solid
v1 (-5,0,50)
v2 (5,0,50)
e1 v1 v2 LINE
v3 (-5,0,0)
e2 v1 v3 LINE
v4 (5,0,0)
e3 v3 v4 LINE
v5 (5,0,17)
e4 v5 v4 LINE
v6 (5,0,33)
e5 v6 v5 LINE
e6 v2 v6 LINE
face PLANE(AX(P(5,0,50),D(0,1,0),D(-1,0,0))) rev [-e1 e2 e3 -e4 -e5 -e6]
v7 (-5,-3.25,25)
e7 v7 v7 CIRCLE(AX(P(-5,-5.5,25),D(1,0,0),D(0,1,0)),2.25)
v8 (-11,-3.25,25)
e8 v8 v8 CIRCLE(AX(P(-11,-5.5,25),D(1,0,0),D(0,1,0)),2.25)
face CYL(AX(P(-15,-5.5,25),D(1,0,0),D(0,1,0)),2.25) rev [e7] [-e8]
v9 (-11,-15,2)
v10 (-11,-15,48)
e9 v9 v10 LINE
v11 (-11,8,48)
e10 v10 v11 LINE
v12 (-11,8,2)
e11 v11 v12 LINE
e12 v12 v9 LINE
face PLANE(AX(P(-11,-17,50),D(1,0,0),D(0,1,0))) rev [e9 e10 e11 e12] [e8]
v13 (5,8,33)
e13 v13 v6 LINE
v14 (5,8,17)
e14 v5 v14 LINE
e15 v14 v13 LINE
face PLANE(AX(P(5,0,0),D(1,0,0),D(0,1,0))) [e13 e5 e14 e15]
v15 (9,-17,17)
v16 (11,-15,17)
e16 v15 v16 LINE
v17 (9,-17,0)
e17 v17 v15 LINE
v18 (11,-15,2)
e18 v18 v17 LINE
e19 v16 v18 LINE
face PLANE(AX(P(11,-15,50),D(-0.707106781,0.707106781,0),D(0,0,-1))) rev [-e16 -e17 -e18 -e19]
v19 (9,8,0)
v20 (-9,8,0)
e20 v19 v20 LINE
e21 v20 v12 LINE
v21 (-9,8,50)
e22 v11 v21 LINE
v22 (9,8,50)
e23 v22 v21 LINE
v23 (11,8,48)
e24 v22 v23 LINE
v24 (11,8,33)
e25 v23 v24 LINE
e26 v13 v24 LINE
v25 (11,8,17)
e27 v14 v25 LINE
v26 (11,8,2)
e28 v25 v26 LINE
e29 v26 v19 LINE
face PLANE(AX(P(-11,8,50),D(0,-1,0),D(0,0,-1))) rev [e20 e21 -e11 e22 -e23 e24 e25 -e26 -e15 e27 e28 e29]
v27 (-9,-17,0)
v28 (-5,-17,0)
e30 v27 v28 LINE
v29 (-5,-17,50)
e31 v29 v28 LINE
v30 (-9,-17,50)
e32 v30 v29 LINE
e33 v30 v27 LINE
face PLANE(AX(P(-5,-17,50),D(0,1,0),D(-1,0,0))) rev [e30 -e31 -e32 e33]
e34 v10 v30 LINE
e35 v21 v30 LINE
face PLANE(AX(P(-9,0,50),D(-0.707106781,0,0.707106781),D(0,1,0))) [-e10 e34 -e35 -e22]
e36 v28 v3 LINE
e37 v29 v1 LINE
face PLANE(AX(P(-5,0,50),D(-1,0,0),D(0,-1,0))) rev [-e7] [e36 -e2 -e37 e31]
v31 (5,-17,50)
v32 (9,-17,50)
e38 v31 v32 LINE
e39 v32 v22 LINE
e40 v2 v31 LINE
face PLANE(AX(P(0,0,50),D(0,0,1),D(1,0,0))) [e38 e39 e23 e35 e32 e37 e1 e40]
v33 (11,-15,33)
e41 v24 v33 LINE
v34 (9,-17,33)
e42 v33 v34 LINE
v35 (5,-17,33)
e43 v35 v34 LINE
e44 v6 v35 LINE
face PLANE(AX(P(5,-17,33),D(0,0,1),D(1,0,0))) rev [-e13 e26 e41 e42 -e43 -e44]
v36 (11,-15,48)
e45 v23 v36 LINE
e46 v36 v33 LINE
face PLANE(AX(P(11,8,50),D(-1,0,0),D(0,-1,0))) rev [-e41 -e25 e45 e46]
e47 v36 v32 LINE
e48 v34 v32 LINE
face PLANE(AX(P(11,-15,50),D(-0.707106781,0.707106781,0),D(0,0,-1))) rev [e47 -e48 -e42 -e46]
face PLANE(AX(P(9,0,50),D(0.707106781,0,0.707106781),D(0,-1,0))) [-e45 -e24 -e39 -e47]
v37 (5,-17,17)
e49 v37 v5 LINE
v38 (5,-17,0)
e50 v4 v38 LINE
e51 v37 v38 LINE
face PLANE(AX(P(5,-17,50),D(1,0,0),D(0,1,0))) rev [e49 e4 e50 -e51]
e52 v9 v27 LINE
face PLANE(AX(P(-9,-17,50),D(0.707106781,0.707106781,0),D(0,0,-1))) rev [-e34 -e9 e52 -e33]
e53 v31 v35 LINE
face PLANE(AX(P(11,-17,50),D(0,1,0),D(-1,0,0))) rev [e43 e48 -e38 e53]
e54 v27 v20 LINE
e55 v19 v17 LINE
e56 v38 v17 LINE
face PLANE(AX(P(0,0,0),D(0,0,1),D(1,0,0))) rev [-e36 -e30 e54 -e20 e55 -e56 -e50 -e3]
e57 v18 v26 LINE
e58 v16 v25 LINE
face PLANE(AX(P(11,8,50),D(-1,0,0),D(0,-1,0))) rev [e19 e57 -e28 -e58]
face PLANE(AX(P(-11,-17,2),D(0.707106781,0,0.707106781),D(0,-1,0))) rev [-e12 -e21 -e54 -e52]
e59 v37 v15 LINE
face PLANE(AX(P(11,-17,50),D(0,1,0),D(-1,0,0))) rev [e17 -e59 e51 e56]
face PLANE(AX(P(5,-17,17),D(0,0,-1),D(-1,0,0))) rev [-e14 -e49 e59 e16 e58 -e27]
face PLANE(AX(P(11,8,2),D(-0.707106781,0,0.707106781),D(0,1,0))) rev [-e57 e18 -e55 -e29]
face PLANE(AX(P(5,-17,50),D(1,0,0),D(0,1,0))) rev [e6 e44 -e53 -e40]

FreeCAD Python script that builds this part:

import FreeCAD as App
import Part
import Sketcher

V = App.Vector


def edges_at(feature, points):
    """Names of the edges that pass closest to the given points."""
    edges = feature.Shape.Edges
    near = lambda p: min(range(len(edges)), key=lambda i: edges[i].distToShape(Part.Vertex(*p))[0])
    return sorted({f"Edge{near(p) + 1}" for p in points})

doc = App.newDocument("Part")
body = doc.addObject("PartDesign::Body", "Body")

sketch1 = doc.addObject("Sketcher::SketchObject", "Sketch")
body.addObject(sketch1)
sketch1.AttachmentSupport = (doc.XY_Plane, [""])
sketch1.MapMode = "FlatFace"
sketch1.addGeometry(Part.LineSegment(V(-5, 0, 0), V(5, 0, 0)), False)
sketch1.addGeometry(Part.LineSegment(V(5, 0, 0), V(5, -17, 0)), False)
sketch1.addGeometry(Part.LineSegment(V(5, -17, 0), V(11, -17, 0)), False)
sketch1.addGeometry(Part.LineSegment(V(11, -17, 0), V(11, 8, 0)), False)
sketch1.addGeometry(Part.LineSegment(V(11, 8, 0), V(-11, 8, 0)), False)
sketch1.addGeometry(Part.LineSegment(V(-11, 8, 0), V(-11, -17, 0)), False)
sketch1.addGeometry(Part.LineSegment(V(-11, -17, 0), V(-5, -17, 0)), False)
sketch1.addGeometry(Part.LineSegment(V(-5, -17, 0), V(-5, 0, 0)), False)
sketch1.addConstraint(Sketcher.Constraint("Coincident", 0, 2, 1, 1))
sketch1.addConstraint(Sketcher.Constraint("Coincident", 1, 2, 2, 1))
sketch1.addConstraint(Sketcher.Constraint("Coincident", 2, 2, 3, 1))
sketch1.addConstraint(Sketcher.Constraint("Coincident", 3, 2, 4, 1))
sketch1.addConstraint(Sketcher.Constraint("Coincident", 4, 2, 5, 1))
sketch1.addConstraint(Sketcher.Constraint("Coincident", 5, 2, 6, 1))
sketch1.addConstraint(Sketcher.Constraint("Coincident", 6, 2, 7, 1))
sketch1.addConstraint(Sketcher.Constraint("Coincident", 7, 2, 0, 1))
sketch1.addConstraint(Sketcher.Constraint("Horizontal", 0))
sketch1.addConstraint(Sketcher.Constraint("Vertical", 1))
sketch1.addConstraint(Sketcher.Constraint("Horizontal", 2))
sketch1.addConstraint(Sketcher.Constraint("Vertical", 3))
sketch1.addConstraint(Sketcher.Constraint("Horizontal", 4))
sketch1.addConstraint(Sketcher.Constraint("Vertical", 5))
sketch1.addConstraint(Sketcher.Constraint("Horizontal", 6))
sketch1.addConstraint(Sketcher.Constraint("Vertical", 7))
sketch1.addConstraint(Sketcher.Constraint("Symmetric", 0, 2, 7, 2, -1, 1))
sketch1.addConstraint(Sketcher.Constraint("Symmetric", 2, 2, 5, 2, -2))
sketch1.addConstraint(Sketcher.Constraint("DistanceX", 0, 1, 0, 2, 10.0))
sketch1.addConstraint(Sketcher.Constraint("DistanceX", 2, 1, 2, 2, 6.0))
sketch1.addConstraint(Sketcher.Constraint("DistanceY", 1, 2, 1, 1, 17.0))
sketch1.addConstraint(Sketcher.Constraint("DistanceY", 3, 1, 3, 2, 25.0))
pad1 = doc.addObject("PartDesign::Pad", "Pad")
body.addObject(pad1)
pad1.Profile = sketch1
pad1.Length = 50

sketch2 = doc.addObject("Sketcher::SketchObject", "Sketch001")
body.addObject(sketch2)
sketch2.AttachmentSupport = (doc.YZ_Plane, [""])
sketch2.MapMode = "FlatFace"
sketch2.AttachmentOffset = App.Placement(V(0, 0, 11), App.Rotation())
sketch2.addGeometry(Part.LineSegment(V(8, 33, 0), V(-17, 33, 0)), False)
sketch2.addGeometry(Part.LineSegment(V(-17, 33, 0), V(-17, 17, 0)), False)
sketch2.addGeometry(Part.LineSegment(V(-17, 17, 0), V(8, 17, 0)), False)
sketch2.addGeometry(Part.LineSegment(V(8, 17, 0), V(8, 33, 0)), False)
sketch2.addConstraint(Sketcher.Constraint("Coincident", 0, 2, 1, 1))
sketch2.addConstraint(Sketcher.Constraint("Coincident", 1, 2, 2, 1))
sketch2.addConstraint(Sketcher.Constraint("Coincident", 2, 2, 3, 1))
sketch2.addConstraint(Sketcher.Constraint("Coincident", 3, 2, 0, 1))
sketch2.addConstraint(Sketcher.Constraint("Horizontal", 0))
sketch2.addConstraint(Sketcher.Constraint("Vertical", 1))
sketch2.addConstraint(Sketcher.Constraint("Horizontal", 2))
sketch2.addConstraint(Sketcher.Constraint("Vertical", 3))
sketch2.addConstraint(Sketcher.Constraint("DistanceX", 0, 2, 0, 1, 25.0))
sketch2.addConstraint(Sketcher.Constraint("DistanceY", 1, 2, 1, 1, 16.0))
sketch2.addConstraint(Sketcher.Constraint("DistanceX", 0, 2, -1, 1, 17.0))
sketch2.addConstraint(Sketcher.Constraint("DistanceY", -1, 1, 0, 2, 33.0))
pocket1 = doc.addObject("PartDesign::Pocket", "Pocket")
body.addObject(pocket1)
pocket1.Profile = sketch2
pocket1.Length = 6

sketch3 = doc.addObject("Sketcher::SketchObject", "Sketch002")
body.addObject(sketch3)
sketch3.AttachmentSupport = (doc.YZ_Plane, [""])
sketch3.MapMode = "FlatFace"
sketch3.AttachmentOffset = App.Placement(V(0, 0, -5), App.Rotation())
sketch3.addGeometry(Part.Circle(V(-5.5, 25, 0), V(0, 0, 1), 2.25), False)
sketch3.addConstraint(Sketcher.Constraint("Diameter", 0, 4.5))
sketch3.addConstraint(Sketcher.Constraint("DistanceY", -1, 1, 0, 3, 25.0))
sketch3.addConstraint(Sketcher.Constraint("DistanceX", 0, 3, -1, 1, 5.5))
pocket2 = doc.addObject("PartDesign::Pocket", "Pocket001")
body.addObject(pocket2)
pocket2.Profile = sketch3
pocket2.Length = 10
doc.recompute()

chamfer = doc.addObject("PartDesign::Chamfer", "Chamfer")
body.addObject(chamfer)
chamfer.Base = (pocket2, edges_at(pocket2, [
    (11, -4.5, 0),
    (11, -4.5, 50),
    (-11, -17, 25),
    (11, -17, 41.5),
    (-11, -4.5, 50),
    (11, -17, 8.5),
    (-11, -4.5, 0),
]))
chamfer.Size = 2

doc.recompute()
